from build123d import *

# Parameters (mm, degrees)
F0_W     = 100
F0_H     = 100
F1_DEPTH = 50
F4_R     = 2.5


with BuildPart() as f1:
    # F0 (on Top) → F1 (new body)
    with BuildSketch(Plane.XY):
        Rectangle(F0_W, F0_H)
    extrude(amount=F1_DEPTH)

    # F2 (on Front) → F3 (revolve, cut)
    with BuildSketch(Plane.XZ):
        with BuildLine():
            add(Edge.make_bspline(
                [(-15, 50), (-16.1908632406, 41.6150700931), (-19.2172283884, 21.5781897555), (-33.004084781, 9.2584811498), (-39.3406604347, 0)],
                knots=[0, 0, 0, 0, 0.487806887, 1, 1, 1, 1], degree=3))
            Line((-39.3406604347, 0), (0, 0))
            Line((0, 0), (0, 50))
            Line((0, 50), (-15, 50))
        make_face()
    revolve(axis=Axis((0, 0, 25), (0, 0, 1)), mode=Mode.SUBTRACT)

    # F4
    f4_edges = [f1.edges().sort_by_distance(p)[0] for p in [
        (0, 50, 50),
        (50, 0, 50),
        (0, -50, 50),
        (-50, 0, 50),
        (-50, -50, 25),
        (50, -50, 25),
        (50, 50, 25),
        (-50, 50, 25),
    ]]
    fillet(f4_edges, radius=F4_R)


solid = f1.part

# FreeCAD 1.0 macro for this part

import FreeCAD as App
import Part
import Sketcher
Q = App.Units.Quantity


def edges_at(feature, points):
    """Names of the edges that pass closest to the given points."""
    edges = feature.Shape.Edges
    near = lambda p: min(range(len(edges)), key=lambda i: edges[i].distToShape(Part.Vertex(*p))[0])
    return sorted({f"Edge{near(p) + 1}" for p in points})

doc = App.newDocument("Part")
body = doc.addObject("PartDesign::Body", "Body")

# Sketch on XY plane
sketch1 = body.newObject("Sketcher::SketchObject", "Sketch")
sketch1.AttachmentSupport = (doc.getObject("XY_Plane"), [""])
sketch1.MapMode = "FlatFace"
sketch1.addGeometry([
    Part.LineSegment(App.Vector(-50, 50, 0), App.Vector(-50, -50, 0)),
    Part.LineSegment(App.Vector(-50, -50, 0), App.Vector(50, -50, 0)),
    Part.LineSegment(App.Vector(50, -50, 0), App.Vector(50, 50, 0)),
    Part.LineSegment(App.Vector(50, 50, 0), App.Vector(-50, 50, 0)),
], False)
sketch1.addConstraint([
    Sketcher.Constraint("Coincident", 0, 2, 1, 1),
    Sketcher.Constraint("Coincident", 1, 2, 2, 1),
    Sketcher.Constraint("Coincident", 2, 2, 3, 1),
    Sketcher.Constraint("Coincident", 3, 2, 0, 1),
    Sketcher.Constraint("Vertical", 0),
    Sketcher.Constraint("Horizontal", 1),
    Sketcher.Constraint("Vertical", 2),
    Sketcher.Constraint("Horizontal", 3),
    Sketcher.Constraint("Symmetric", 0, 2, 2, 2, -1, 1),
    Sketcher.Constraint("Equal", 3, 0),
    Sketcher.Constraint("DistanceX", 1, 1, 1, 2, Q("100 mm")),
])
pad1 = body.newObject("PartDesign::Pad", "Pad")
pad1.Profile = sketch1
pad1.Length = 50

# Sketch on XZ plane
sketch2 = body.newObject("Sketcher::SketchObject", "Sketch001")
sketch2.AttachmentSupport = (doc.getObject("XZ_Plane"), [""])
sketch2.MapMode = "FlatFace"
sketch2.addGeometry([
    Part.BSplineCurve([App.Vector(-15, 50, 0), App.Vector(-16.190863, 41.61507, 0), App.Vector(-19.217228, 21.57819, 0), App.Vector(-33.004085, 9.258481, 0), App.Vector(-39.34066, 0, 0)], [4, 1, 4], [0, 0.487806887, 1], False, 3, [1, 1, 1, 1, 1], False),
    Part.LineSegment(App.Vector(-39.34066, 0, 0), App.Vector(0, 0, 0)),
    Part.LineSegment(App.Vector(0, 0, 0), App.Vector(0, 50, 0)),
    Part.LineSegment(App.Vector(0, 50, 0), App.Vector(-15, 50, 0)),
], False)
sketch2.addConstraint([
    Sketcher.Constraint("Block", 0),
    Sketcher.Constraint("Coincident", 0, 2, 1, 1),
    Sketcher.Constraint("Coincident", 1, 2, 2, 1),
    Sketcher.Constraint("Coincident", 2, 2, 3, 1),
    Sketcher.Constraint("Coincident", 3, 2, 0, 1),
    Sketcher.Constraint("Horizontal", 1),
    Sketcher.Constraint("Vertical", 2),
    Sketcher.Constraint("Horizontal", 3),
    Sketcher.Constraint("PointOnObject", 2, 2, -2),
])
groove = body.newObject("PartDesign::Groove", "Groove")
groove.Profile = sketch2
groove.ReferenceAxis = (sketch2, ["V_Axis"])
groove.Angle = 360
doc.recompute()

fillet = body.newObject("PartDesign::Fillet", "Fillet")
fillet.Base = (groove, edges_at(groove, [
    (0, 50, 50),
    (50, 0, 50),
    (0, -50, 50),
    (-50, 0, 50),
    (-50, -50, 25),
    (50, -50, 25),
    (50, 50, 25),
    (-50, 50, 25),
]))
fillet.Radius = 2.5

doc.recompute()
